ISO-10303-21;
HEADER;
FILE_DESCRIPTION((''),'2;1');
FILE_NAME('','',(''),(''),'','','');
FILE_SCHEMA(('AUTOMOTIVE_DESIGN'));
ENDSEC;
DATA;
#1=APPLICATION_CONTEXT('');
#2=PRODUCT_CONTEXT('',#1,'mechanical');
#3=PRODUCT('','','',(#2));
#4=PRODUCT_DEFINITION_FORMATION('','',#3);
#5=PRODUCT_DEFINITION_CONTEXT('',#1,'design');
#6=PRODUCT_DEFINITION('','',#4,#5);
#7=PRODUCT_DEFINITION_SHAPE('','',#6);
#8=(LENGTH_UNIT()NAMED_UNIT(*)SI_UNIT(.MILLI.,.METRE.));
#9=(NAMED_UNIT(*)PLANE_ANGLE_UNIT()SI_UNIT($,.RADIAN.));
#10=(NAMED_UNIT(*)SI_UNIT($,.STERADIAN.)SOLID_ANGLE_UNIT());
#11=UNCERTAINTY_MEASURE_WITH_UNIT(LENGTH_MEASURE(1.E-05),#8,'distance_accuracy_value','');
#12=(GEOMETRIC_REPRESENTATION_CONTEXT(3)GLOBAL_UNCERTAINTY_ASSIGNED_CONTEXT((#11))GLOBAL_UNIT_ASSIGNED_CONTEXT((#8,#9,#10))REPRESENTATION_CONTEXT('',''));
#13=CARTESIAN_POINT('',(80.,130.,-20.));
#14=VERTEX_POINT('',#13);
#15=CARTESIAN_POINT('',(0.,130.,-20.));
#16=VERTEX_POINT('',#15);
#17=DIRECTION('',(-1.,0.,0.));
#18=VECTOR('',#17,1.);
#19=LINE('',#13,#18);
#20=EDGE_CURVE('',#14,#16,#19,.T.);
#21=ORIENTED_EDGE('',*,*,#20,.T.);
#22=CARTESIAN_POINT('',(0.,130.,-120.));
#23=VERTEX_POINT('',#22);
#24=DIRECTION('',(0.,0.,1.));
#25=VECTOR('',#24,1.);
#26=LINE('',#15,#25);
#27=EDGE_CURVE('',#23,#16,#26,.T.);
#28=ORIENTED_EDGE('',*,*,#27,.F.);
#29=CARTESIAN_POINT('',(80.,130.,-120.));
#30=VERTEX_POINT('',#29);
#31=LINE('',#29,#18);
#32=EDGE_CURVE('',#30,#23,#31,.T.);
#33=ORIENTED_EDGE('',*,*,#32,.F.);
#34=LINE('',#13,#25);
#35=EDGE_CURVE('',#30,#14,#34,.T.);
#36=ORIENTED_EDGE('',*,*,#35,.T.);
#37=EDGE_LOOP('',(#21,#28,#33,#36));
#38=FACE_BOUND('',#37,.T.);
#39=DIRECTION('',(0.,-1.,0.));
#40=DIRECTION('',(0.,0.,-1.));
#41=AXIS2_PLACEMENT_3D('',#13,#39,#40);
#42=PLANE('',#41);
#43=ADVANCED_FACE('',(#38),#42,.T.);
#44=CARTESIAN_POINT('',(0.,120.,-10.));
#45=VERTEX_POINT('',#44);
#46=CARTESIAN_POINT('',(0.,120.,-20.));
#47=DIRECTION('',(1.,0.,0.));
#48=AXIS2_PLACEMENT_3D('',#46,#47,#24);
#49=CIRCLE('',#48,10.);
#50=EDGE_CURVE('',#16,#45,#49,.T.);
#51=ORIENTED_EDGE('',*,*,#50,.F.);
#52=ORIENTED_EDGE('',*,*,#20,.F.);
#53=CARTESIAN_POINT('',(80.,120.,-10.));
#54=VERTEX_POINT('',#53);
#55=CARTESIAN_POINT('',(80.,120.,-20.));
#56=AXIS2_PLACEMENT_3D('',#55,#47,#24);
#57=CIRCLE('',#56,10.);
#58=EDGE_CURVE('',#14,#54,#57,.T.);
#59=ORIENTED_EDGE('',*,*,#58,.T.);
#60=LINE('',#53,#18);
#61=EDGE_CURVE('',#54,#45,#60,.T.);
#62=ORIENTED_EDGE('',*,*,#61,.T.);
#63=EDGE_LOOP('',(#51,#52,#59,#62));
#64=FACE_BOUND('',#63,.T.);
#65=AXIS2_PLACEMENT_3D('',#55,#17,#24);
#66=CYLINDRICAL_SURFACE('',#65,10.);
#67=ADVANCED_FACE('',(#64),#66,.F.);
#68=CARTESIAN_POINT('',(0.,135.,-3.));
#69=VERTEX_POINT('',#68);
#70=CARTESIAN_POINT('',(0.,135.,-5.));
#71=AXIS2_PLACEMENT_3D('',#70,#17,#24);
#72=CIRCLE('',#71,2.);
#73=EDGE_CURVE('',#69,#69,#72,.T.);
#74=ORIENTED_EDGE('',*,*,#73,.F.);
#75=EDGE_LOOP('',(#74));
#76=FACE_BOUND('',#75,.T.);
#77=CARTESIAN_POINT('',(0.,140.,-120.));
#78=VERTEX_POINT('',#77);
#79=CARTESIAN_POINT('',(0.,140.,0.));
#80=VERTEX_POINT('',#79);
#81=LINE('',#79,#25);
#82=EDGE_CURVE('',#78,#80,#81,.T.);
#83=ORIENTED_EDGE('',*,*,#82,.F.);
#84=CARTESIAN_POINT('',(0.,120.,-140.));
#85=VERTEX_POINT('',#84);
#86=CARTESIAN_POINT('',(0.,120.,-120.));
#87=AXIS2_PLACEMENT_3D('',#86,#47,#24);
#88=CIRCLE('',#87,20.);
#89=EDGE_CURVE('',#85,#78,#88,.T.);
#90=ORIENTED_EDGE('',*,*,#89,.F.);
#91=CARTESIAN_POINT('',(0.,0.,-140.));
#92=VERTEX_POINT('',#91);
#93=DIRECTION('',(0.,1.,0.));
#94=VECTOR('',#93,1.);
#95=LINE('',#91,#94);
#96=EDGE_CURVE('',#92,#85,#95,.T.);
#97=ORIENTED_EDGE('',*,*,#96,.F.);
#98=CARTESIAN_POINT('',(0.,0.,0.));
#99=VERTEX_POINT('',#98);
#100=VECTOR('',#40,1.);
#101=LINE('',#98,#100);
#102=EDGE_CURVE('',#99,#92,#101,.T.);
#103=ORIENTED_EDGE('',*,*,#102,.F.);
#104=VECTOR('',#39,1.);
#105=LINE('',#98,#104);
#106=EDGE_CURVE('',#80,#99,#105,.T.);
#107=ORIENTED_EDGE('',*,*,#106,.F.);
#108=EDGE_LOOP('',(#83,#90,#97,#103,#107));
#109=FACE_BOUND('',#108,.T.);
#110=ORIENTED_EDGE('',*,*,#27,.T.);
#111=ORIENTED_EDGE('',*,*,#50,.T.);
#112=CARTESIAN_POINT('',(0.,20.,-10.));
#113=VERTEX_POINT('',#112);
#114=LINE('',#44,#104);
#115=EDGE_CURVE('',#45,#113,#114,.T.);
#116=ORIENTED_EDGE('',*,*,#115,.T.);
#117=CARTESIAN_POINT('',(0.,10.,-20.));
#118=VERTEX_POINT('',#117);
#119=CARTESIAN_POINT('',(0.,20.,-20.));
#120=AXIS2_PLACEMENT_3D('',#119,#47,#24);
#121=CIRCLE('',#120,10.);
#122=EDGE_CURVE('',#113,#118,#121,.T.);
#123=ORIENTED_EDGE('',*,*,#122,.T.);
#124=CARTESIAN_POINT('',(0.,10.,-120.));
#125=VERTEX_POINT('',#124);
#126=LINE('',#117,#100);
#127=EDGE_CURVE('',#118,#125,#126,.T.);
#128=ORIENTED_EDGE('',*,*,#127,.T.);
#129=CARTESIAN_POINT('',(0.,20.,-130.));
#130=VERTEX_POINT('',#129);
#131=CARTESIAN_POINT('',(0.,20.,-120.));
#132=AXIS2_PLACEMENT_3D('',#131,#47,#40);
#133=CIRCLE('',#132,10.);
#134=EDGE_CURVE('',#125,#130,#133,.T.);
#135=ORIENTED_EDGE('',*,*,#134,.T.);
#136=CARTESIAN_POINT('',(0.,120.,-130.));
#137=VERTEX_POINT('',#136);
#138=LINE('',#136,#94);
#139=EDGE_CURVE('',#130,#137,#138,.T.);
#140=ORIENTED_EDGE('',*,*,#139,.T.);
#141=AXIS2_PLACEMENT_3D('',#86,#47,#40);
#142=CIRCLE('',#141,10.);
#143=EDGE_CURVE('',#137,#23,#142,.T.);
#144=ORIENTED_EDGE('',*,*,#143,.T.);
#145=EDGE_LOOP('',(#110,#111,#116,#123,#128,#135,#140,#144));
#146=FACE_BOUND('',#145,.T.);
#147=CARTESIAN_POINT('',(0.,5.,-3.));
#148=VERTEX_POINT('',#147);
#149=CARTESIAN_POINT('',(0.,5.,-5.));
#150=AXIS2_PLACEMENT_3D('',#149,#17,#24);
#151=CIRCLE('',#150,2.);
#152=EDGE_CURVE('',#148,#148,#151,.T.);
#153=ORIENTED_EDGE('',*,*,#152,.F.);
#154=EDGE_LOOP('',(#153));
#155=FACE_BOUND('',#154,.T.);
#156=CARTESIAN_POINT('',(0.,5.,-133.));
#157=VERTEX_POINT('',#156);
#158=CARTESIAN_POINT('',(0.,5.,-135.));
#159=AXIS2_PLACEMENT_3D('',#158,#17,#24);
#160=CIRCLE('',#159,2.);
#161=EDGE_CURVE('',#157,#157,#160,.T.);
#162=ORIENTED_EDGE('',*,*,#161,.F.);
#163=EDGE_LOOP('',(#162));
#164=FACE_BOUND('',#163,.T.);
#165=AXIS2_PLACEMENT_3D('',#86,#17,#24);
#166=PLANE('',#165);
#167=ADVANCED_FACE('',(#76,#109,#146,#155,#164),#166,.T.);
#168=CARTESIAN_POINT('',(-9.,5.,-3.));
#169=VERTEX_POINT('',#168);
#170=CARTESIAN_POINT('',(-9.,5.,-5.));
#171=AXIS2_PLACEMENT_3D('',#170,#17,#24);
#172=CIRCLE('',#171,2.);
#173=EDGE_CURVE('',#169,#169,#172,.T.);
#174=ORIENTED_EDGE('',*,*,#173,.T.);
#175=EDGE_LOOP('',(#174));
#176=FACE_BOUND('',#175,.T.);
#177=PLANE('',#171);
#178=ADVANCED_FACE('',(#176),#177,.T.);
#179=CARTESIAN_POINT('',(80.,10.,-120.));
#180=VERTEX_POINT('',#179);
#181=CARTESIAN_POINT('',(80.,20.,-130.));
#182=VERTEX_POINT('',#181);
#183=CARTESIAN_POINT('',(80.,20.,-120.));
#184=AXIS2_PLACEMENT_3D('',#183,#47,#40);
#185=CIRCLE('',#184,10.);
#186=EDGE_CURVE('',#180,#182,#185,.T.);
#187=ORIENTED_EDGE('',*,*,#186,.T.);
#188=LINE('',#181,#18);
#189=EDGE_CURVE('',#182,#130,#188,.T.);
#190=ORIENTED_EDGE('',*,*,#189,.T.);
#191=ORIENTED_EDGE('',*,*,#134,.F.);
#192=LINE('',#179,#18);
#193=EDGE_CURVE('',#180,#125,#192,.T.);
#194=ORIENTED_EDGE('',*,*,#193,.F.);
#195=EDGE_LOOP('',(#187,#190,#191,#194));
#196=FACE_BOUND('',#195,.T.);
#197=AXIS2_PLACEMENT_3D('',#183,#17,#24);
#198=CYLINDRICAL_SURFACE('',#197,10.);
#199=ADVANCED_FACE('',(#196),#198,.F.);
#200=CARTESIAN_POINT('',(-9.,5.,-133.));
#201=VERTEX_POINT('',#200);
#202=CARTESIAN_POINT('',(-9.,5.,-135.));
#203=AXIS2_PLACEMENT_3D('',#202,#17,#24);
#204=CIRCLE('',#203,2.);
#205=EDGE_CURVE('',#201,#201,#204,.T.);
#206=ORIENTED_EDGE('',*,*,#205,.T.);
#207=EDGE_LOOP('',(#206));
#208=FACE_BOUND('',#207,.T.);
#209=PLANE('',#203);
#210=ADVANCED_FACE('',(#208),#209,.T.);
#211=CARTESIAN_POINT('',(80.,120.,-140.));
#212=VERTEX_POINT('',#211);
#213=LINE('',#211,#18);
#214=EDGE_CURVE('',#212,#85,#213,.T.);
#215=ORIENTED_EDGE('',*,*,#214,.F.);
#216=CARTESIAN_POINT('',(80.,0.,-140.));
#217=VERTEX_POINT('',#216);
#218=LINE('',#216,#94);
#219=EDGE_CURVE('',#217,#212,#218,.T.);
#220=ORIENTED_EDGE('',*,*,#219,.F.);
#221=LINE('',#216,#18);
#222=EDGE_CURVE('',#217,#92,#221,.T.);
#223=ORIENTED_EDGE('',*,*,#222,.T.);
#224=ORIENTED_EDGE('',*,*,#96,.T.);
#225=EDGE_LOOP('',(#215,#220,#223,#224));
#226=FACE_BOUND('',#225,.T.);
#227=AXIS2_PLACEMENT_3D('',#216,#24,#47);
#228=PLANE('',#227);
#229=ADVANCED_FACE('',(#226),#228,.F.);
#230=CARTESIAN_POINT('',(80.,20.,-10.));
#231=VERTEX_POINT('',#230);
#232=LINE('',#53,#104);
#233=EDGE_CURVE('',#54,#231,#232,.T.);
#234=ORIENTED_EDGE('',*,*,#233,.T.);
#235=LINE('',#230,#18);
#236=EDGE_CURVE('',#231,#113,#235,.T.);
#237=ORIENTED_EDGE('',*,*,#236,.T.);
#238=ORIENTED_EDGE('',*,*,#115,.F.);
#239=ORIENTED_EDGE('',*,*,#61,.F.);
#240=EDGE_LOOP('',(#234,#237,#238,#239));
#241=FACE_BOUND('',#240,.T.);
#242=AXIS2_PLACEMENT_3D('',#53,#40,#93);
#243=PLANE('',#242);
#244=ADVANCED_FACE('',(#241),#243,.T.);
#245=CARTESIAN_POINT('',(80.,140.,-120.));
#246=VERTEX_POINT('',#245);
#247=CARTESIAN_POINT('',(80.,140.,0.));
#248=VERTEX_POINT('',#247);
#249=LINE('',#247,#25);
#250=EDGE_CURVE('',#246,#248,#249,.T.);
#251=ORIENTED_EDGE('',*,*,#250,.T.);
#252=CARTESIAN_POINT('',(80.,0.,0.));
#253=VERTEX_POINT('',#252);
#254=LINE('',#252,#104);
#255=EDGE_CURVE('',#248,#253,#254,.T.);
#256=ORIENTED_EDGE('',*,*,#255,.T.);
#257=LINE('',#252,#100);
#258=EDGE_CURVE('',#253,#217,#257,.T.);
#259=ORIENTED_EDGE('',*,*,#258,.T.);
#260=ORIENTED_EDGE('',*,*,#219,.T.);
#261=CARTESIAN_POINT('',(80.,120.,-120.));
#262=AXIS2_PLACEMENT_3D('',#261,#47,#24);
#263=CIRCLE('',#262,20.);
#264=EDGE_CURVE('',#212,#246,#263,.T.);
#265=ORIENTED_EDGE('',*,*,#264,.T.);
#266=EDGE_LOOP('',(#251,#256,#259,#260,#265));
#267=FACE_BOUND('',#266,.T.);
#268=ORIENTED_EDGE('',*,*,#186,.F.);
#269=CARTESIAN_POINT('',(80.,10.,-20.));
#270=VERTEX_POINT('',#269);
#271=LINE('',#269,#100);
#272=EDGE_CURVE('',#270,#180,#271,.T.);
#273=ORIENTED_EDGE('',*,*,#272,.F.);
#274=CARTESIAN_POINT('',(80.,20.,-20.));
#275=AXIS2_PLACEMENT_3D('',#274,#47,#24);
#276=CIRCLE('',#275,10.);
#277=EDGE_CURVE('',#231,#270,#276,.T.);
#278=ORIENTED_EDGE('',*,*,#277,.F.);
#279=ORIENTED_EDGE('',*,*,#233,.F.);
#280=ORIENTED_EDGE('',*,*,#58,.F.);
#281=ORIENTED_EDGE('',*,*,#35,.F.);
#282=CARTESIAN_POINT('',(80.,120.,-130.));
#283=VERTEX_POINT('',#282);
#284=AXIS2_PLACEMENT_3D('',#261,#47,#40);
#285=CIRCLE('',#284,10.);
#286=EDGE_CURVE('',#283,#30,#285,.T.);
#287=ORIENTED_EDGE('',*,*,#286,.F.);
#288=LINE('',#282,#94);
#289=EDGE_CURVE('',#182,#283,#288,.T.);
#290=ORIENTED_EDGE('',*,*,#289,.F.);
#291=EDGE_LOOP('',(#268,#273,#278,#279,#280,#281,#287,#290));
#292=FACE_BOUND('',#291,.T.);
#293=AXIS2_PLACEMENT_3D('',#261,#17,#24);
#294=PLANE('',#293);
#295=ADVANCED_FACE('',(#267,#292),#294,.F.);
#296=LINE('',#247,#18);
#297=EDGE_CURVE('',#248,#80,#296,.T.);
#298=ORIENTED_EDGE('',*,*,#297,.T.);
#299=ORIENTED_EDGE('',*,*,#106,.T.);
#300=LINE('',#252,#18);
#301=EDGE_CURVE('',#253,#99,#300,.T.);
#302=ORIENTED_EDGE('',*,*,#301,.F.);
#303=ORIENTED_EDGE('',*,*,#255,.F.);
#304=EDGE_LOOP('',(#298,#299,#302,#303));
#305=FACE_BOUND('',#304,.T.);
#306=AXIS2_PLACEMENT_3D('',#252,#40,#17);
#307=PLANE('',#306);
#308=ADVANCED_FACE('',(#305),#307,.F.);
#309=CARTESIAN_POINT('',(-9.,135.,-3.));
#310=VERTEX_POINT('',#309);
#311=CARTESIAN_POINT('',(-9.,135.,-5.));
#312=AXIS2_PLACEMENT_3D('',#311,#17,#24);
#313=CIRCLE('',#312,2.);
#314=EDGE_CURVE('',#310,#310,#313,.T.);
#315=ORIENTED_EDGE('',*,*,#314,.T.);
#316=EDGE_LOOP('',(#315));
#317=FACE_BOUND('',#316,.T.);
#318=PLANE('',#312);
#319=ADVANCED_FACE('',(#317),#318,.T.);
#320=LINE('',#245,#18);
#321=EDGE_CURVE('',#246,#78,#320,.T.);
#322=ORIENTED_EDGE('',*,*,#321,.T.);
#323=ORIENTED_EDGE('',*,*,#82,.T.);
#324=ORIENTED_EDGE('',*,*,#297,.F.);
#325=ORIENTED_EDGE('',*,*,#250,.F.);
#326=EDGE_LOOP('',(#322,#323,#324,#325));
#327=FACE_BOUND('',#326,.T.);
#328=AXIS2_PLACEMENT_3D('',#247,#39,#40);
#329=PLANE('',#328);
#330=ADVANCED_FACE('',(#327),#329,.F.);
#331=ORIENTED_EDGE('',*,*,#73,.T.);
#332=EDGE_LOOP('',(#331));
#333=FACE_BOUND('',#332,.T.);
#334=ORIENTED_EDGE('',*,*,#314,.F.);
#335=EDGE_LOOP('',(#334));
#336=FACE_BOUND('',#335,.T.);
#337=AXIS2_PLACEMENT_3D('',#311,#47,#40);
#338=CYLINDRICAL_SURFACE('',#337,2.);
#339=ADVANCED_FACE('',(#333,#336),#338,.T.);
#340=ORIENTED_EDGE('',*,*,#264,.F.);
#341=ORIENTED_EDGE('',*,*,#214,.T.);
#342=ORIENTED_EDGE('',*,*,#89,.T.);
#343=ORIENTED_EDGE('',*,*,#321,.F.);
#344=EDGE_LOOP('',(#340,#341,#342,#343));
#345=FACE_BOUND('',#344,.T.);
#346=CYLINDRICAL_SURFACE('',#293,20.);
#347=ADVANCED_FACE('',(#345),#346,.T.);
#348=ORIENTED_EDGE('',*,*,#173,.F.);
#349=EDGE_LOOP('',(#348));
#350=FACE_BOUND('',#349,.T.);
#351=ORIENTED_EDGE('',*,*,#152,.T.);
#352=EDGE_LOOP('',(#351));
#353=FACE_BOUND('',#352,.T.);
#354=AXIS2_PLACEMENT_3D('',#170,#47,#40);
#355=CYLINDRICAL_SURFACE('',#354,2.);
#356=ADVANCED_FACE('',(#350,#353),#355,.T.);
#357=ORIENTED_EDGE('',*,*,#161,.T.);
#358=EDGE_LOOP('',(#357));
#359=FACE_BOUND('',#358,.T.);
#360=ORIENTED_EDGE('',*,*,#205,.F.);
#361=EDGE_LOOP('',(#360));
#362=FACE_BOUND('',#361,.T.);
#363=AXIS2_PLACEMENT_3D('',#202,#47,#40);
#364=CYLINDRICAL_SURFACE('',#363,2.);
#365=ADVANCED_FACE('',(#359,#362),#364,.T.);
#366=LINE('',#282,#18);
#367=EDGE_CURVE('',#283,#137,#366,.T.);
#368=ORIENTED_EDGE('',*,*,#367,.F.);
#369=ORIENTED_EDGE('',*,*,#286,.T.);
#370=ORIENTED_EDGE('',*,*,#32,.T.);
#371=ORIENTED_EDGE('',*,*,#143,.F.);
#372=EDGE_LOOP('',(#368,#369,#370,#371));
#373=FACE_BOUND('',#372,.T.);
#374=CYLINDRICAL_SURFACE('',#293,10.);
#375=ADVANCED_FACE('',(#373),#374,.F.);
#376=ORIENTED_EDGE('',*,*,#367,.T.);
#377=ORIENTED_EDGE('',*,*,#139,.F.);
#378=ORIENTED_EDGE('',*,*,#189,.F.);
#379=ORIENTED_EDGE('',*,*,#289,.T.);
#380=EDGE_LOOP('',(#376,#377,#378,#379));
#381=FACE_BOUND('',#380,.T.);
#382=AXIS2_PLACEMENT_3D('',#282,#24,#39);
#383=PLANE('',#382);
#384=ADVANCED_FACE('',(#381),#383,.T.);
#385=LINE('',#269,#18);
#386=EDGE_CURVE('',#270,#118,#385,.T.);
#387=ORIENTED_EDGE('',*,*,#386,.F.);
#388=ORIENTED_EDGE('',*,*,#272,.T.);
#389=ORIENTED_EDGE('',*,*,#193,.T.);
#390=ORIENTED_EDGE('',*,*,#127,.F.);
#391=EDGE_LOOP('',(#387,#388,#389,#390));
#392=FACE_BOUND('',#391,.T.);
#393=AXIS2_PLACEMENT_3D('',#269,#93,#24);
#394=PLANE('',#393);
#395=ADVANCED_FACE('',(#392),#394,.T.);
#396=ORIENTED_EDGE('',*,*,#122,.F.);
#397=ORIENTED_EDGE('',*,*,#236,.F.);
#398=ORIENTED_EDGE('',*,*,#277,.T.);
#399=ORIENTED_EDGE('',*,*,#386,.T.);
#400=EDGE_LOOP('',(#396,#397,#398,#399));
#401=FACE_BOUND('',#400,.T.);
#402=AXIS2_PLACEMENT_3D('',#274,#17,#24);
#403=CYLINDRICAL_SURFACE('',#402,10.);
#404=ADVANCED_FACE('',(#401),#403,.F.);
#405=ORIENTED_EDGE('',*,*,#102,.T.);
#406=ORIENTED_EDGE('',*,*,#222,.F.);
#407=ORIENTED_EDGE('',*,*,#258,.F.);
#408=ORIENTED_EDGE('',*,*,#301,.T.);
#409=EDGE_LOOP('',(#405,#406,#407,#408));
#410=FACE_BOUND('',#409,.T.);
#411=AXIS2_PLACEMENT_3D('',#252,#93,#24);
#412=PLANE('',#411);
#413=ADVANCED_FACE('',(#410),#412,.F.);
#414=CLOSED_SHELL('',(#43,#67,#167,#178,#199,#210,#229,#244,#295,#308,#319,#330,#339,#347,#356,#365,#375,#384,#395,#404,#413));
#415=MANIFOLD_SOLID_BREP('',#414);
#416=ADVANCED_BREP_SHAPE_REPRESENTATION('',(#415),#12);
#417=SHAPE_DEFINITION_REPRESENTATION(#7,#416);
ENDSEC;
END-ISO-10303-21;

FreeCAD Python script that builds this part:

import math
import FreeCAD as App
import Part
import Sketcher
from FreeCAD import Vector
Q = App.Units.Quantity

doc = App.newDocument("Part")
params = doc.addObject("Spreadsheet::Sheet", "Params")
for row, (alias, value) in enumerate([
    ("sketch1_radius", "20 mm"),
    ("sketch1_radius2", "10 mm"),
    ("sketch1_width", "120 mm"),
    ("sketch1_width2", "100 mm"),
    ("pad1_length", "80 mm"),
    ("sketch2_diameter", "4 mm"),
    ("pad2_length", "9 mm"),
], start=1):
    params.set(f"A{row}", alias)
    params.set(f"B{row}", "=" + value)
    params.setAlias(f"B{row}", alias)

body = doc.addObject("PartDesign::Body", "Body")

# Sketch on YZ plane
sketch1 = doc.addObject("Sketcher::SketchObject", "Sketch")
body.addObject(sketch1)
sketch1.AttachmentSupport = (doc.YZ_Plane, [""])
sketch1.MapMode = "FlatFace"
sketch1.addGeometry([
    Part.LineSegment(Vector(0, 0, 0), Vector(0, -140, 0)),  # 0
    Part.LineSegment(Vector(0, -140, 0), Vector(120, -140, 0)),  # 1
    Part.ArcOfCircle(Part.Circle(Vector(120, -120, 0), Vector(0, 0, 1), 20), math.radians(-90), math.radians(0)),  # 2
    Part.LineSegment(Vector(140, -120, 0), Vector(140, 0, 0)),  # 3
    Part.LineSegment(Vector(140, 0, 0), Vector(0, 0, 0)),  # 4
    Part.ArcOfCircle(Part.Circle(Vector(120, -20, 0), Vector(0, 0, 1), 10), math.radians(0), math.radians(90)),  # 5
    Part.LineSegment(Vector(130, -20, 0), Vector(130, -120, 0)),  # 6
    Part.ArcOfCircle(Part.Circle(Vector(120, -120, 0), Vector(0, 0, 1), 10), math.radians(-90), math.radians(0)),  # 7
    Part.LineSegment(Vector(120, -130, 0), Vector(20, -130, 0)),  # 8
    Part.ArcOfCircle(Part.Circle(Vector(20, -120, 0), Vector(0, 0, 1), 10), math.radians(180), math.radians(270)),  # 9
    Part.LineSegment(Vector(10, -120, 0), Vector(10, -20, 0)),  # 10
    Part.ArcOfCircle(Part.Circle(Vector(20, -20, 0), Vector(0, 0, 1), 10), math.radians(90), math.radians(180)),  # 11
    Part.LineSegment(Vector(20, -10, 0), Vector(120, -10, 0)),  # 12
], False)
sketch1.addConstraint([
    Sketcher.Constraint("Coincident", 0, 2, 1, 1),
    Sketcher.Constraint("Tangent", 1, 2, 2, 1),
    Sketcher.Constraint("Tangent", 2, 2, 3, 1),
    Sketcher.Constraint("Coincident", 3, 2, 4, 1),
    Sketcher.Constraint("Coincident", 4, 2, 0, 1),
    Sketcher.Constraint("Tangent", 5, 1, 6, 1),
    Sketcher.Constraint("Tangent", 6, 2, 7, 2),
    Sketcher.Constraint("Tangent", 7, 1, 8, 1),
    Sketcher.Constraint("Tangent", 8, 2, 9, 2),
    Sketcher.Constraint("Tangent", 9, 1, 10, 1),
    Sketcher.Constraint("Tangent", 10, 2, 11, 2),
    Sketcher.Constraint("Tangent", 11, 1, 12, 1),
    Sketcher.Constraint("Tangent", 12, 2, 5, 2),
    Sketcher.Constraint("Vertical", 0),
    Sketcher.Constraint("Horizontal", 1),
    Sketcher.Constraint("Vertical", 3),
    Sketcher.Constraint("Horizontal", 4),
    Sketcher.Constraint("Vertical", 6),
    Sketcher.Constraint("Horizontal", 8),
    Sketcher.Constraint("Vertical", 10),
    Sketcher.Constraint("Horizontal", 12),
    Sketcher.Constraint("Coincident", 4, 2, -1, 1),
    Sketcher.Constraint("Coincident", 7, 3, 2, 3),
    Sketcher.Constraint("Equal", 5, 7),
    Sketcher.Constraint("Equal", 7, 9),
    Sketcher.Constraint("Equal", 9, 11),
    Sketcher.Constraint("Equal", 4, 0),
    Sketcher.Constraint("Equal", 12, 6),
    Sketcher.Constraint("Radius", 2, Q("20 mm")),
    Sketcher.Constraint("Radius", 5, Q("10 mm")),
    Sketcher.Constraint("DistanceX", 1, 1, 1, 2, Q("120 mm")),
    Sketcher.Constraint("DistanceX", 8, 2, 8, 1, Q("100 mm")),
])
sketch1.setExpression("Constraints[28]", "Params.sketch1_radius")
sketch1.setExpression("Constraints[29]", "Params.sketch1_radius2")
sketch1.setExpression("Constraints[30]", "Params.sketch1_width")
sketch1.setExpression("Constraints[31]", "Params.sketch1_width2")
pad1 = doc.addObject("PartDesign::Pad", "Pad")
body.addObject(pad1)
pad1.Profile = sketch1
pad1.setExpression("Length", "Params.pad1_length")

# Sketch on YZ plane
sketch2 = doc.addObject("Sketcher::SketchObject", "Sketch001")
body.addObject(sketch2)
sketch2.AttachmentSupport = (doc.YZ_Plane, [""])
sketch2.MapMode = "FlatFace"
sketch2.addGeometry([
    Part.Circle(Vector(135, -5, 0), Vector(0, 0, 1), 2),
    Part.Circle(Vector(5, -135, 0), Vector(0, 0, 1), 2),
    Part.Circle(Vector(5, -5, 0), Vector(0, 0, 1), 2),
], False)
sketch2.addConstraint([
    Sketcher.Constraint("Equal", 0, 1),
    Sketcher.Constraint("Equal", 1, 2),
    Sketcher.Constraint("Horizontal", 0, 3, 2, 3),
    Sketcher.Constraint("Vertical", 1, 3, 2, 3),
    Sketcher.Constraint("Diameter", 0, Q("4 mm")),
    Sketcher.Constraint("DistanceX", -1, 1, 0, 3, Q("135 mm")),
    Sketcher.Constraint("DistanceY", 0, 3, -1, 1, Q("5 mm")),
    Sketcher.Constraint("DistanceX", -1, 1, 1, 3, Q("5 mm")),
    Sketcher.Constraint("DistanceY", 1, 3, -1, 1, Q("135 mm")),
])
sketch2.setExpression("Constraints[4]", "Params.sketch2_diameter")
pad2 = doc.addObject("PartDesign::Pad", "Pad001")
body.addObject(pad2)
pad2.Profile = sketch2
pad2.setExpression("Length", "Params.pad2_length")
pad2.Reversed = True

doc.recompute()
